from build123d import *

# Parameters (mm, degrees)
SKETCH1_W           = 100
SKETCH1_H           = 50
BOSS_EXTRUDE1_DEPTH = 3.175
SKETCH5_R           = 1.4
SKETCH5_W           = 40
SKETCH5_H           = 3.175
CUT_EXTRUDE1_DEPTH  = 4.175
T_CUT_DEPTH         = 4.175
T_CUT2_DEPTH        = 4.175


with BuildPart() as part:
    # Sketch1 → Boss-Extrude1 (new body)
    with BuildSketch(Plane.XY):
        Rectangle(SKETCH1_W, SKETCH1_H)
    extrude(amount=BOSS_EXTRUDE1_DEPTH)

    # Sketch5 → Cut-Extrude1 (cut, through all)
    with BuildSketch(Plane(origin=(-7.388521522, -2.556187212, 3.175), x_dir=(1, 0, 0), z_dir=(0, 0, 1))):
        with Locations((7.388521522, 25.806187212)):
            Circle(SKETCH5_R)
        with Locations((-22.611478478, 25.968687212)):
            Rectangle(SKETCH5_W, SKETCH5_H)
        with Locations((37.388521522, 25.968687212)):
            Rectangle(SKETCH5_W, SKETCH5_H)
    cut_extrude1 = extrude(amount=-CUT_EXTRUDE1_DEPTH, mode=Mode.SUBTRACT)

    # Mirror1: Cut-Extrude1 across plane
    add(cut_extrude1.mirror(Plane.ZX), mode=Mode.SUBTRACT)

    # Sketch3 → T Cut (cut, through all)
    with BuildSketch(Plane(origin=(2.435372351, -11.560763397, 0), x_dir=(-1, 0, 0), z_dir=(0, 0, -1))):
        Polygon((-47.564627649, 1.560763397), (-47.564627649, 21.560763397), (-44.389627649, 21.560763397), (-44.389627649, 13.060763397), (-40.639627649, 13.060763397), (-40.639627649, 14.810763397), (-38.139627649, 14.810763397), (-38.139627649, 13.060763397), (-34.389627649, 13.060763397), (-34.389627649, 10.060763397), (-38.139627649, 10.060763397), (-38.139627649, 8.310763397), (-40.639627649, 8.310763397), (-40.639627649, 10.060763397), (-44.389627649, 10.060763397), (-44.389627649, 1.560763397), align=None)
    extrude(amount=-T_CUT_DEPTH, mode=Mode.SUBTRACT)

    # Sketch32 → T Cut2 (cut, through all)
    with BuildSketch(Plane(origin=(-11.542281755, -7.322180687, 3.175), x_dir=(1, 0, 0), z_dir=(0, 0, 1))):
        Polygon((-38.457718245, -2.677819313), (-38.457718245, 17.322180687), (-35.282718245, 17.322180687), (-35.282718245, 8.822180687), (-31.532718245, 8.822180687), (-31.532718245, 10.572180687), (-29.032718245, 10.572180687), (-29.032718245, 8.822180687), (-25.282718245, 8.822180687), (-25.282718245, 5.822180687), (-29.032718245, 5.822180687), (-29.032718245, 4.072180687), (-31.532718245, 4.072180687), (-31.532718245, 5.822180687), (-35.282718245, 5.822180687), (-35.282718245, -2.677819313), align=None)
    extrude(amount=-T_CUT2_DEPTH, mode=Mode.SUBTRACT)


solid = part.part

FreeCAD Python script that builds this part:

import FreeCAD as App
import Part
import Sketcher

V = App.Vector

doc = App.newDocument("Part")
body = doc.addObject("PartDesign::Body", "Body")

# Sketch on XY plane
sketch1 = body.newObject("Sketcher::SketchObject", "Sketch")
sketch1.AttachmentSupport = (doc.getObject("XY_Plane"), [""])
sketch1.MapMode = "FlatFace"
sketch1.addGeometry([
    Part.LineSegment(V(-50, 25, 0), V(-50, -25, 0)),
    Part.LineSegment(V(-50, -25, 0), V(50, -25, 0)),
    Part.LineSegment(V(50, -25, 0), V(50, 25, 0)),
    Part.LineSegment(V(50, 25, 0), V(-50, 25, 0)),
], False)
sketch1.addConstraint([
    Sketcher.Constraint("Coincident", 0, 2, 1, 1),
    Sketcher.Constraint("Coincident", 1, 2, 2, 1),
    Sketcher.Constraint("Coincident", 2, 2, 3, 1),
    Sketcher.Constraint("Coincident", 3, 2, 0, 1),
    Sketcher.Constraint("Vertical", 0),
    Sketcher.Constraint("Horizontal", 1),
    Sketcher.Constraint("Vertical", 2),
    Sketcher.Constraint("Horizontal", 3),
    Sketcher.Constraint("Symmetric", 0, 2, 2, 2, -1, 1),
    Sketcher.Constraint("DistanceX", 1, 1, 1, 2, 100.0),
    Sketcher.Constraint("DistanceY", 0, 2, 0, 1, 50.0),
])
pad1 = body.newObject("PartDesign::Pad", "Pad")
pad1.Profile = sketch1
pad1.Length = 3.175

# Sketch on XY plane
sketch2 = body.newObject("Sketcher::SketchObject", "Sketch001")
sketch2.AttachmentSupport = (doc.getObject("XY_Plane"), [""])
sketch2.MapMode = "FlatFace"
sketch2.AttachmentOffset = App.Placement(V(0, 0, 3.175), App.Rotation())
sketch2.addGeometry([
    Part.Circle(V(0, 23.2, 0), V(0, 0, 1), 1.4),  # 0
    Part.LineSegment(V(-50, 25, 0), V(-50, 21.8, 0)),  # 1
    Part.LineSegment(V(-50, 21.8, 0), V(-10, 21.8, 0)),  # 2
    Part.LineSegment(V(-10, 21.8, 0), V(-10, 25, 0)),  # 3
    Part.LineSegment(V(-10, 25, 0), V(-50, 25, 0)),  # 4
    Part.LineSegment(V(10, 25, 0), V(10, 21.8, 0)),  # 5
    Part.LineSegment(V(10, 21.8, 0), V(50, 21.8, 0)),  # 6
    Part.LineSegment(V(50, 21.8, 0), V(50, 25, 0)),  # 7
    Part.LineSegment(V(50, 25, 0), V(10, 25, 0)),  # 8
], False)
sketch2.addConstraint([
    Sketcher.Constraint("Coincident", 1, 2, 2, 1),
    Sketcher.Constraint("Coincident", 2, 2, 3, 1),
    Sketcher.Constraint("Coincident", 3, 2, 4, 1),
    Sketcher.Constraint("Coincident", 4, 2, 1, 1),
    Sketcher.Constraint("Coincident", 5, 2, 6, 1),
    Sketcher.Constraint("Coincident", 6, 2, 7, 1),
    Sketcher.Constraint("Coincident", 7, 2, 8, 1),
    Sketcher.Constraint("Coincident", 8, 2, 5, 1),
    Sketcher.Constraint("Vertical", 1),
    Sketcher.Constraint("Horizontal", 2),
    Sketcher.Constraint("Vertical", 3),
    Sketcher.Constraint("Horizontal", 4),
    Sketcher.Constraint("Vertical", 5),
    Sketcher.Constraint("Horizontal", 6),
    Sketcher.Constraint("Vertical", 7),
    Sketcher.Constraint("Horizontal", 8),
    Sketcher.Constraint("Symmetric", 2, 2, 5, 2, -2),
    Sketcher.Constraint("Symmetric", 4, 2, 7, 2, -2),
    Sketcher.Constraint("PointOnObject", 0, 3, -2),
    Sketcher.Constraint("Diameter", 0, 2.8),
    Sketcher.Constraint("DistanceX", 2, 1, 2, 2, 40.0),
    Sketcher.Constraint("DistanceX", 1, 2, -1, 1, 50.0),
    Sketcher.Constraint("DistanceY", -1, 1, 3, 2, 25.0),
    Sketcher.Constraint("DistanceY", 1, 2, 1, 1, 3.175),
    Sketcher.Constraint("DistanceY", -1, 1, 0, 3, 23.25),
])
pocket1 = body.newObject("PartDesign::Pocket", "Pocket")
pocket1.Profile = sketch2
pocket1.Type = "ThroughAll"
doc.recompute()

mirrored = body.newObject("PartDesign::Mirrored", "Mirrored")
mirrored.Originals = [pocket1]
mirrored.MirrorPlane = (doc.getObject("XZ_Plane"), [""])
body.Tip = mirrored

# Sketch on XY plane
sketch3 = body.newObject("Sketcher::SketchObject", "Sketch002")
sketch3.AttachmentSupport = (doc.getObject("XY_Plane"), [""])
sketch3.MapMode = "FlatFace"
sketch3.addGeometry([
    Part.LineSegment(V(50, 10, 0), V(50, -10, 0)),  # 0
    Part.LineSegment(V(50, -10, 0), V(46.8, -10, 0)),  # 1
    Part.LineSegment(V(46.8, -10, 0), V(46.8, -1.5, 0)),  # 2
    Part.LineSegment(V(46.8, -1.5, 0), V(43.1, -1.5, 0)),  # 3
    Part.LineSegment(V(43.1, -1.5, 0), V(43.1, -3.2, 0)),  # 4
    Part.LineSegment(V(43.1, -3.2, 0), V(40.6, -3.2, 0)),  # 5
    Part.LineSegment(V(40.6, -3.2, 0), V(40.6, -1.5, 0)),  # 6
    Part.LineSegment(V(40.6, -1.5, 0), V(36.8, -1.5, 0)),  # 7
    Part.LineSegment(V(36.8, -1.5, 0), V(36.8, 1.5, 0)),  # 8
    Part.LineSegment(V(36.8, 1.5, 0), V(40.6, 1.5, 0)),  # 9
    Part.LineSegment(V(40.6, 1.5, 0), V(40.6, 3.2, 0)),  # 10
    Part.LineSegment(V(40.6, 3.2, 0), V(43.1, 3.2, 0)),  # 11
    Part.LineSegment(V(43.1, 3.2, 0), V(43.1, 1.5, 0)),  # 12
    Part.LineSegment(V(43.1, 1.5, 0), V(46.8, 1.5, 0)),  # 13
    Part.LineSegment(V(46.8, 1.5, 0), V(46.8, 10, 0)),  # 14
    Part.LineSegment(V(46.8, 10, 0), V(50, 10, 0)),  # 15
], False)
sketch3.addConstraint([
    Sketcher.Constraint("Coincident", 0, 2, 1, 1),
    Sketcher.Constraint("Coincident", 1, 2, 2, 1),
    Sketcher.Constraint("Coincident", 2, 2, 3, 1),
    Sketcher.Constraint("Coincident", 3, 2, 4, 1),
    Sketcher.Constraint("Coincident", 4, 2, 5, 1),
    Sketcher.Constraint("Coincident", 5, 2, 6, 1),
    Sketcher.Constraint("Coincident", 6, 2, 7, 1),
    Sketcher.Constraint("Coincident", 7, 2, 8, 1),
    Sketcher.Constraint("Coincident", 8, 2, 9, 1),
    Sketcher.Constraint("Coincident", 9, 2, 10, 1),
    Sketcher.Constraint("Coincident", 10, 2, 11, 1),
    Sketcher.Constraint("Coincident", 11, 2, 12, 1),
    Sketcher.Constraint("Coincident", 12, 2, 13, 1),
    Sketcher.Constraint("Coincident", 13, 2, 14, 1),
    Sketcher.Constraint("Coincident", 14, 2, 15, 1),
    Sketcher.Constraint("Coincident", 15, 2, 0, 1),
    Sketcher.Constraint("Vertical", 0),
    Sketcher.Constraint("Horizontal", 1),
    Sketcher.Constraint("Vertical", 2),
    Sketcher.Constraint("Horizontal", 3),
    Sketcher.Constraint("Vertical", 4),
    Sketcher.Constraint("Horizontal", 5),
    Sketcher.Constraint("Vertical", 6),
    Sketcher.Constraint("Horizontal", 7),
    Sketcher.Constraint("Vertical", 8),
    Sketcher.Constraint("Horizontal", 9),
    Sketcher.Constraint("Vertical", 10),
    Sketcher.Constraint("Horizontal", 11),
    Sketcher.Constraint("Vertical", 12),
    Sketcher.Constraint("Horizontal", 13),
    Sketcher.Constraint("Vertical", 14),
    Sketcher.Constraint("Horizontal", 15),
    Sketcher.Constraint("Symmetric", 6, 2, 9, 2, -1),
    Sketcher.Constraint("Symmetric", 4, 2, 11, 2, -1),
    Sketcher.Constraint("Symmetric", 2, 2, 13, 2, -1),
    Sketcher.Constraint("Horizontal", 3, 2, 6, 2),
    Sketcher.Constraint("Equal", 3, 7),
    Sketcher.Constraint("Equal", 2, 14),
    Sketcher.Constraint("DistanceY", 0, 2, 0, 1, 20.0),
    Sketcher.Constraint("DistanceY", 8, 1, 8, 2, 3.0),
    Sketcher.Constraint("DistanceX", 5, 2, 5, 1, 2.5),
    Sketcher.Constraint("DistanceX", -1, 1, 0, 2, 50.0),
    Sketcher.Constraint("DistanceX", 7, 2, 2, 2, 10.0),
    Sketcher.Constraint("DistanceY", 4, 2, 4, 1, 1.75),
    Sketcher.Constraint("DistanceX", 1, 2, 1, 1, 3.175),
])
pocket2 = body.newObject("PartDesign::Pocket", "Pocket001")
pocket2.Profile = sketch3
pocket2.Type = "ThroughAll"
pocket2.Reversed = True

# Sketch on XY plane
sketch4 = body.newObject("Sketcher::SketchObject", "Sketch003")
sketch4.AttachmentSupport = (doc.getObject("XY_Plane"), [""])
sketch4.MapMode = "FlatFace"
sketch4.AttachmentOffset = App.Placement(V(0, 0, 3.175), App.Rotation())
sketch4.addGeometry([
    Part.LineSegment(V(-50, 10, 0), V(-50, -10, 0)),  # 0
    Part.LineSegment(V(-50, -10, 0), V(-46.8, -10, 0)),  # 1
    Part.LineSegment(V(-46.8, -10, 0), V(-46.8, -1.5, 0)),  # 2
    Part.LineSegment(V(-46.8, -1.5, 0), V(-43.1, -1.5, 0)),  # 3
    Part.LineSegment(V(-43.1, -1.5, 0), V(-43.1, -3.2, 0)),  # 4
    Part.LineSegment(V(-43.1, -3.2, 0), V(-40.6, -3.2, 0)),  # 5
    Part.LineSegment(V(-40.6, -3.2, 0), V(-40.6, -1.5, 0)),  # 6
    Part.LineSegment(V(-40.6, -1.5, 0), V(-36.8, -1.5, 0)),  # 7
    Part.LineSegment(V(-36.8, -1.5, 0), V(-36.8, 1.5, 0)),  # 8
    Part.LineSegment(V(-36.8, 1.5, 0), V(-40.6, 1.5, 0)),  # 9
    Part.LineSegment(V(-40.6, 1.5, 0), V(-40.6, 3.2, 0)),  # 10
    Part.LineSegment(V(-40.6, 3.2, 0), V(-43.1, 3.2, 0)),  # 11
    Part.LineSegment(V(-43.1, 3.2, 0), V(-43.1, 1.5, 0)),  # 12
    Part.LineSegment(V(-43.1, 1.5, 0), V(-46.8, 1.5, 0)),  # 13
    Part.LineSegment(V(-46.8, 1.5, 0), V(-46.8, 10, 0)),  # 14
    Part.LineSegment(V(-46.8, 10, 0), V(-50, 10, 0)),  # 15
], False)
sketch4.addConstraint([
    Sketcher.Constraint("Coincident", 0, 2, 1, 1),
    Sketcher.Constraint("Coincident", 1, 2, 2, 1),
    Sketcher.Constraint("Coincident", 2, 2, 3, 1),
    Sketcher.Constraint("Coincident", 3, 2, 4, 1),
    Sketcher.Constraint("Coincident", 4, 2, 5, 1),
    Sketcher.Constraint("Coincident", 5, 2, 6, 1),
    Sketcher.Constraint("Coincident", 6, 2, 7, 1),
    Sketcher.Constraint("Coincident", 7, 2, 8, 1),
    Sketcher.Constraint("Coincident", 8, 2, 9, 1),
    Sketcher.Constraint("Coincident", 9, 2, 10, 1),
    Sketcher.Constraint("Coincident", 10, 2, 11, 1),
    Sketcher.Constraint("Coincident", 11, 2, 12, 1),
    Sketcher.Constraint("Coincident", 12, 2, 13, 1),
    Sketcher.Constraint("Coincident", 13, 2, 14, 1),
    Sketcher.Constraint("Coincident", 14, 2, 15, 1),
    Sketcher.Constraint("Coincident", 15, 2, 0, 1),
    Sketcher.Constraint("Vertical", 0),
    Sketcher.Constraint("Horizontal", 1),
    Sketcher.Constraint("Vertical", 2),
    Sketcher.Constraint("Horizontal", 3),
    Sketcher.Constraint("Vertical", 4),
    Sketcher.Constraint("Horizontal", 5),
    Sketcher.Constraint("Vertical", 6),
    Sketcher.Constraint("Horizontal", 7),
    Sketcher.Constraint("Vertical", 8),
    Sketcher.Constraint("Horizontal", 9),
    Sketcher.Constraint("Vertical", 10),
    Sketcher.Constraint("Horizontal", 11),
    Sketcher.Constraint("Vertical", 12),
    Sketcher.Constraint("Horizontal", 13),
    Sketcher.Constraint("Vertical", 14),
    Sketcher.Constraint("Horizontal", 15),
    Sketcher.Constraint("Symmetric", 6, 2, 9, 2, -1),
    Sketcher.Constraint("Symmetric", 4, 2, 11, 2, -1),
    Sketcher.Constraint("Symmetric", 2, 2, 13, 2, -1),
    Sketcher.Constraint("Horizontal", 3, 2, 6, 2),
    Sketcher.Constraint("Equal", 3, 7),
    Sketcher.Constraint("Equal", 2, 14),
    Sketcher.Constraint("DistanceY", 0, 2, 0, 1, 20.0),
    Sketcher.Constraint("DistanceY", 8, 1, 8, 2, 3.0),
    Sketcher.Constraint("DistanceX", 5, 1, 5, 2, 2.5),
    Sketcher.Constraint("DistanceX", 0, 2, -1, 1, 50.0),
    Sketcher.Constraint("DistanceX", 2, 2, 7, 2, 10.0),
    Sketcher.Constraint("DistanceY", 4, 2, 4, 1, 1.75),
    Sketcher.Constraint("DistanceX", 1, 1, 1, 2, 3.175),
])
pocket3 = body.newObject("PartDesign::Pocket", "Pocket002")
pocket3.Profile = sketch4
pocket3.Type = "ThroughAll"

doc.recompute()
